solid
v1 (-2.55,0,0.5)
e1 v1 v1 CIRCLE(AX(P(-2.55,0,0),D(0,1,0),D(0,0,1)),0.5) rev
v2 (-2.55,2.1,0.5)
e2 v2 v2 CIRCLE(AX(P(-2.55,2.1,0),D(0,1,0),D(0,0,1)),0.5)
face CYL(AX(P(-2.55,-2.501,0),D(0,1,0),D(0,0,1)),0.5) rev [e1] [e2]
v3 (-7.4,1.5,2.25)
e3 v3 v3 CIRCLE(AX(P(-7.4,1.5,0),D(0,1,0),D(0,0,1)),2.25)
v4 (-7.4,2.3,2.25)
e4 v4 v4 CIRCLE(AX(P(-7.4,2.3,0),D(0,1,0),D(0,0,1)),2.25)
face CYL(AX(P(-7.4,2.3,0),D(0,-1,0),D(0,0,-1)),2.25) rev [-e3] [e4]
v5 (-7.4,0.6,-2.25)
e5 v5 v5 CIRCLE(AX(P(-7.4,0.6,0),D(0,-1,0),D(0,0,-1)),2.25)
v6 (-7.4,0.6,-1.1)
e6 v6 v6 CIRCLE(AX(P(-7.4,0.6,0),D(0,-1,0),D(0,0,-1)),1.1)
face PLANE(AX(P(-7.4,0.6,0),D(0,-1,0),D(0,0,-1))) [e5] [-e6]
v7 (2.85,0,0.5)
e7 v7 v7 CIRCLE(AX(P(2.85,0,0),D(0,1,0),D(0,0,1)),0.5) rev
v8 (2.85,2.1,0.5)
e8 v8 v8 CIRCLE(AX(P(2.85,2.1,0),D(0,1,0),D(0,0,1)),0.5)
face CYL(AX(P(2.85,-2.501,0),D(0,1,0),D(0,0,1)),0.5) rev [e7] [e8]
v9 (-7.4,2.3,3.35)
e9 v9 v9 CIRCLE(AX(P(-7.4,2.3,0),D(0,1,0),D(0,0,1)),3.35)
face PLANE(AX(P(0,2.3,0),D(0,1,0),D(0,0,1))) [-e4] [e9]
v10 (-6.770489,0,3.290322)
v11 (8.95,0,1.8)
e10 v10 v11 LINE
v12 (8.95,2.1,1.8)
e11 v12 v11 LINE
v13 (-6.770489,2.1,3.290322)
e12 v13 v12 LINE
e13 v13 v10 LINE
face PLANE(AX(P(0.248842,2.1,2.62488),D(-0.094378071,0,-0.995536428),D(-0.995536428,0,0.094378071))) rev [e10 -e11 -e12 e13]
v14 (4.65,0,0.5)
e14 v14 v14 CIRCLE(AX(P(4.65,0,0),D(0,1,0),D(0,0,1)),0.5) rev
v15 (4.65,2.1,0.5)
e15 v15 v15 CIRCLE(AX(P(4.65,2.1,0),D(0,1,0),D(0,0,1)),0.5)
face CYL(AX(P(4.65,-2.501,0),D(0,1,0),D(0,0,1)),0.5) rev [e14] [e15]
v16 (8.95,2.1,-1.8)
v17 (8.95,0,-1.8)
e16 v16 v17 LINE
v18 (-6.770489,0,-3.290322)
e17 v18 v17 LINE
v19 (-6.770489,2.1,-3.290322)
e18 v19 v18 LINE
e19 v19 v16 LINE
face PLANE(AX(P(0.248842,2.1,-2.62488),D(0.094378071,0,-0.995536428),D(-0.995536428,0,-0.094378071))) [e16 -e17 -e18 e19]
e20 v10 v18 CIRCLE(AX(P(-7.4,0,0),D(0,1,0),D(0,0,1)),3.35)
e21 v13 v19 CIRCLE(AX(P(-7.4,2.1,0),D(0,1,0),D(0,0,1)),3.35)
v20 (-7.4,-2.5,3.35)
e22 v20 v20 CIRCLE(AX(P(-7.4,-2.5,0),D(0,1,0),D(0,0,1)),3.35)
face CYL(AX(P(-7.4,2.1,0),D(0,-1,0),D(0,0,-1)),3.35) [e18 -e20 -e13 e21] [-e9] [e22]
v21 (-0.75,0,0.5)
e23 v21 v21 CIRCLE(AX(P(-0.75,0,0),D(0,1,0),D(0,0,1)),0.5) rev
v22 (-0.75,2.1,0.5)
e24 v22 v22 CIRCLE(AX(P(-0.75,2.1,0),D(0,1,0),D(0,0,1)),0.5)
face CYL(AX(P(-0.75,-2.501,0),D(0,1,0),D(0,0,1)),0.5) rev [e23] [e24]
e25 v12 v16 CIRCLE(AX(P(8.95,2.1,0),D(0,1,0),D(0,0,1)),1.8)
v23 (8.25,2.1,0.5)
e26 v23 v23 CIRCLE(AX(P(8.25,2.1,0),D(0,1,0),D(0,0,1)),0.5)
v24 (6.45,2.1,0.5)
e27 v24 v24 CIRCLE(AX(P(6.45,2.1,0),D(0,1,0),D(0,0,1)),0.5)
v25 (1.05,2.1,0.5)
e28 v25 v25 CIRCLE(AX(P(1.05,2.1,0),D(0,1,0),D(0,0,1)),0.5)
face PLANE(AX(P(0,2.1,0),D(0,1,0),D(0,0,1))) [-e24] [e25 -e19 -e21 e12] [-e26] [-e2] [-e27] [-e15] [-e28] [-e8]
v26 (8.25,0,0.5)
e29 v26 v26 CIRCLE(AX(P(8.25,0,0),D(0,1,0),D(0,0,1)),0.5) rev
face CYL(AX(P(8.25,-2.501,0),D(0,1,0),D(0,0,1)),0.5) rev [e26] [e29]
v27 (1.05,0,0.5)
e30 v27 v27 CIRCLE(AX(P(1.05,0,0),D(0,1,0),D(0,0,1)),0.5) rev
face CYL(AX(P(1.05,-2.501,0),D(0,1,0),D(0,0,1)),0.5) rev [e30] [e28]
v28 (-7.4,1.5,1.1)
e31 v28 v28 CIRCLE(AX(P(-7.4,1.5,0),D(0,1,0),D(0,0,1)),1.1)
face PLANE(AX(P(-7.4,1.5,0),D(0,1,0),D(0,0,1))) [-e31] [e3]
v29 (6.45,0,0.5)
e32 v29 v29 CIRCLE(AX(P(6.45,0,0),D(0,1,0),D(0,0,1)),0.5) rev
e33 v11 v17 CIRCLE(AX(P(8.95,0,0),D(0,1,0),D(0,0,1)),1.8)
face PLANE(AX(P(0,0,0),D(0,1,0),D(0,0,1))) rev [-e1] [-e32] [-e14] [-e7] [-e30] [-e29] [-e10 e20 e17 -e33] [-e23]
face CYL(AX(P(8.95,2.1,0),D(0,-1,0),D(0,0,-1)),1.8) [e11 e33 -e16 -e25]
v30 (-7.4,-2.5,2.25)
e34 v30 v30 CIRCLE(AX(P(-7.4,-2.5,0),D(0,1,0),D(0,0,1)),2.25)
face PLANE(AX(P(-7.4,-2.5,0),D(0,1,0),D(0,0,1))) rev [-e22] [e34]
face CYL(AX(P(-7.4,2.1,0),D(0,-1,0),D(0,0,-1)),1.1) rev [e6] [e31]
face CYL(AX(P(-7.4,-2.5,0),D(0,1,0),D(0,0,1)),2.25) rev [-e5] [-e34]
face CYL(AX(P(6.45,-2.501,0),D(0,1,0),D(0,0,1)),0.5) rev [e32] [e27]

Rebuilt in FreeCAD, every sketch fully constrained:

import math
import FreeCAD as App
import Part
import Sketcher
from FreeCAD import Vector

doc = App.newDocument("Part")
params = doc.addObject("Spreadsheet::Sheet", "Params")
for row, (alias, value) in enumerate([
    ("sketch1_diameter", "2.2 mm"),
    ("sketch1_radius", "1.8 mm"),
    ("sketch1_radius2", "3.35 mm"),
    ("pad1_length", "2.1 mm"),
    ("sketch2_diameter", "6.7 mm"),
    ("sketch2_diameter2", "4.5 mm"),
    ("pad2_length", "0.2 mm"),
    ("sketch3_diameter", "4.5 mm"),
    ("pocket1_length", "0.8 mm"),
    ("sketch4_diameter", "6.7 mm"),
    ("sketch4_diameter2", "4.5 mm"),
    ("pad3_length", "4.8 mm"),
    ("sketch5_diameter", "4.5 mm"),
    ("sketch5_diameter2", "2.2 mm"),
    ("pocket2_length", "3.1 mm"),
    ("sketch6_diameter", "1 mm"),
    ("sketch7_diameter", "1 mm"),
    ("sketch8_diameter", "1 mm"),
    ("sketch9_diameter", "1 mm"),
    ("sketch10_diameter", "1 mm"),
    ("sketch11_diameter", "1 mm"),
    ("sketch12_diameter", "1 mm"),
], start=1):
    params.set(f"A{row}", alias)
    params.set(f"B{row}", "=" + value)
    params.setAlias(f"B{row}", alias)

body = doc.addObject("PartDesign::Body", "Body")

sketch1 = body.newObject("Sketcher::SketchObject", "Sketch")
sketch1.AttachmentSupport = (doc.getObject("XZ_Plane"), [""])
sketch1.MapMode = "FlatFace"
sketch1.addGeometry([
    Part.ArcOfCircle(Part.Circle(Vector(-7.4, 0, 0), Vector(0, 0, 1), 3.4), math.radians(90), math.radians(270)),
    Part.LineSegment(Vector(-7.4, 3.4, 0), Vector(8.9, 1.8, 0)),
    Part.ArcOfCircle(Part.Circle(Vector(8.9, 0, 0), Vector(0, 0, 1), 1.8), math.radians(-90), math.radians(90)),
    Part.LineSegment(Vector(8.9, -1.8, 0), Vector(-7.4, -3.4, 0)),
    Part.Circle(Vector(-7.4, 0, 0), Vector(0, 0, 1), 1.1),
], False)
sketch1.addConstraint([
    Sketcher.Constraint("Coincident", 0, 1, 1, 1),
    Sketcher.Constraint("Coincident", 1, 2, 2, 2),
    Sketcher.Constraint("Coincident", 2, 1, 3, 1),
    Sketcher.Constraint("Coincident", 3, 2, 0, 2),
    Sketcher.Constraint("Coincident", 4, 3, 0, 3),
    Sketcher.Constraint("Symmetric", 1, 2, 2, 1, -1),
    Sketcher.Constraint("Symmetric", 0, 1, 3, 2, -1),
    Sketcher.Constraint("Vertical", 4, 3, 0, 1),
    Sketcher.Constraint("Vertical", 2, 3, 1, 2),
    Sketcher.Constraint("Diameter", 4, 2.2),
    Sketcher.Constraint("Radius", 2, 1.8),
    Sketcher.Constraint("Radius", 0, 3.35),
    Sketcher.Constraint("DistanceX", 0, 3, -1, 1, 7.4),
    Sketcher.Constraint("DistanceX", -1, 1, 2, 3, 8.95),
])
sketch1.setExpression("Constraints[9]", "Params.sketch1_diameter")
sketch1.setExpression("Constraints[10]", "Params.sketch1_radius")
sketch1.setExpression("Constraints[11]", "Params.sketch1_radius2")
pad1 = body.newObject("PartDesign::Pad", "Pad")
pad1.Profile = sketch1
pad1.setExpression("Length", "Params.pad1_length")
pad1.Reversed = True

sketch2 = body.newObject("Sketcher::SketchObject", "Sketch001")
sketch2.AttachmentSupport = (doc.getObject("XZ_Plane"), [""])
sketch2.MapMode = "FlatFace"
sketch2.AttachmentOffset = App.Placement(Vector(0, 0, -2.1), App.Rotation())
sketch2.addGeometry([
    Part.Circle(Vector(-7.4, 0, 0), Vector(0, 0, 1), 3.4),
    Part.Circle(Vector(-7.4, 0, 0), Vector(0, 0, 1), 2.2),
], False)
sketch2.addConstraint([
    Sketcher.Constraint("Coincident", 1, 3, 0, 3),
    Sketcher.Constraint("PointOnObject", 0, 3, -1),
    Sketcher.Constraint("Diameter", 0, 6.7),
    Sketcher.Constraint("Diameter", 1, 4.5),
    Sketcher.Constraint("DistanceX", 0, 3, -1, 1, 7.4),
])
sketch2.setExpression("Constraints[2]", "Params.sketch2_diameter")
sketch2.setExpression("Constraints[3]", "Params.sketch2_diameter2")
pad2 = body.newObject("PartDesign::Pad", "Pad001")
pad2.Profile = sketch2
pad2.setExpression("Length", "Params.pad2_length")
pad2.Reversed = True

sketch3 = body.newObject("Sketcher::SketchObject", "Sketch002")
sketch3.AttachmentSupport = (doc.getObject("XZ_Plane"), [""])
sketch3.MapMode = "FlatFace"
sketch3.AttachmentOffset = App.Placement(Vector(0, 0, -1.5), App.Rotation())
sketch3.addGeometry(Part.Circle(Vector(-7.4, 0, 0), Vector(0, 0, 1), 2.2), False)
sketch3.addConstraint([
    Sketcher.Constraint("PointOnObject", 0, 3, -1),
    Sketcher.Constraint("Diameter", 0, 4.5),
    Sketcher.Constraint("DistanceX", 0, 3, -1, 1, 7.4),
])
sketch3.setExpression("Constraints[1]", "Params.sketch3_diameter")
pocket1 = body.newObject("PartDesign::Pocket", "Pocket")
pocket1.Profile = sketch3
pocket1.setExpression("Length", "Params.pocket1_length")

sketch4 = body.newObject("Sketcher::SketchObject", "Sketch003")
sketch4.AttachmentSupport = (doc.getObject("XZ_Plane"), [""])
sketch4.MapMode = "FlatFace"
sketch4.AttachmentOffset = App.Placement(Vector(0, 0, 2.5), App.Rotation())
sketch4.addGeometry([
    Part.Circle(Vector(-7.4, 0, 0), Vector(0, 0, 1), 3.4),
    Part.Circle(Vector(-7.4, 0, 0), Vector(0, 0, 1), 2.2),
], False)
sketch4.addConstraint([
    Sketcher.Constraint("Coincident", 1, 3, 0, 3),
    Sketcher.Constraint("PointOnObject", 0, 3, -1),
    Sketcher.Constraint("Diameter", 0, 6.7),
    Sketcher.Constraint("Diameter", 1, 4.5),
    Sketcher.Constraint("DistanceX", 0, 3, -1, 1, 7.4),
])
sketch4.setExpression("Constraints[2]", "Params.sketch4_diameter")
sketch4.setExpression("Constraints[3]", "Params.sketch4_diameter2")
pad3 = body.newObject("PartDesign::Pad", "Pad002")
pad3.Profile = sketch4
pad3.setExpression("Length", "Params.pad3_length")
pad3.Reversed = True

sketch5 = body.newObject("Sketcher::SketchObject", "Sketch004")
sketch5.AttachmentSupport = (doc.getObject("XZ_Plane"), [""])
sketch5.MapMode = "FlatFace"
sketch5.AttachmentOffset = App.Placement(Vector(0, 0, 2.5), App.Rotation())
sketch5.addGeometry([
    Part.Circle(Vector(-7.4, 0, 0), Vector(0, 0, 1), 2.2),
    Part.Circle(Vector(-7.4, 0, 0), Vector(0, 0, 1), 1.1),
], False)
sketch5.addConstraint([
    Sketcher.Constraint("Coincident", 1, 3, 0, 3),
    Sketcher.Constraint("PointOnObject", 0, 3, -1),
    Sketcher.Constraint("Diameter", 0, 4.5),
    Sketcher.Constraint("Diameter", 1, 2.2),
    Sketcher.Constraint("DistanceX", 0, 3, -1, 1, 7.4),
])
sketch5.setExpression("Constraints[2]", "Params.sketch5_diameter")
sketch5.setExpression("Constraints[3]", "Params.sketch5_diameter2")
pocket2 = body.newObject("PartDesign::Pocket", "Pocket001")
pocket2.Profile = sketch5
pocket2.setExpression("Length", "Params.pocket2_length")

sketch6 = body.newObject("Sketcher::SketchObject", "Sketch005")
sketch6.AttachmentSupport = (doc.getObject("XZ_Plane"), [""])
sketch6.MapMode = "FlatFace"
sketch6.AttachmentOffset = App.Placement(Vector(0, 0, -2.1), App.Rotation())
sketch6.addGeometry(Part.Circle(Vector(-2.5, 0, 0), Vector(0, 0, 1), 0.5), False)
sketch6.addConstraint([
    Sketcher.Constraint("PointOnObject", 0, 3, -1),
    Sketcher.Constraint("Diameter", 0, 1.0),
    Sketcher.Constraint("DistanceX", 0, 3, -1, 1, 2.55),
])
sketch6.setExpression("Constraints[1]", "Params.sketch6_diameter")
pocket3 = body.newObject("PartDesign::Pocket", "Pocket002")
pocket3.Profile = sketch6
pocket3.Type = "UpToFirst"
pocket3.Reversed = True

sketch7 = body.newObject("Sketcher::SketchObject", "Sketch006")
sketch7.AttachmentSupport = (doc.getObject("XZ_Plane"), [""])
sketch7.MapMode = "FlatFace"
sketch7.AttachmentOffset = App.Placement(Vector(0, 0, -2.1), App.Rotation())
sketch7.addGeometry(Part.Circle(Vector(-0.8, 0, 0), Vector(0, 0, 1), 0.5), False)
sketch7.addConstraint([
    Sketcher.Constraint("PointOnObject", 0, 3, -1),
    Sketcher.Constraint("Diameter", 0, 1.0),
    Sketcher.Constraint("DistanceX", 0, 3, -1, 1, 0.75),
])
sketch7.setExpression("Constraints[1]", "Params.sketch7_diameter")
pocket4 = body.newObject("PartDesign::Pocket", "Pocket003")
pocket4.Profile = sketch7
pocket4.Type = "UpToFirst"
pocket4.Reversed = True

sketch8 = body.newObject("Sketcher::SketchObject", "Sketch007")
sketch8.AttachmentSupport = (doc.getObject("XZ_Plane"), [""])
sketch8.MapMode = "FlatFace"
sketch8.AttachmentOffset = App.Placement(Vector(0, 0, -2.1), App.Rotation())
sketch8.addGeometry(Part.Circle(Vector(1.1, 0, 0), Vector(0, 0, 1), 0.5), False)
sketch8.addConstraint([
    Sketcher.Constraint("PointOnObject", 0, 3, -1),
    Sketcher.Constraint("Diameter", 0, 1.0),
    Sketcher.Constraint("DistanceX", -1, 1, 0, 3, 1.05),
])
sketch8.setExpression("Constraints[1]", "Params.sketch8_diameter")
pocket5 = body.newObject("PartDesign::Pocket", "Pocket004")
pocket5.Profile = sketch8
pocket5.Type = "UpToFirst"
pocket5.Reversed = True

sketch9 = body.newObject("Sketcher::SketchObject", "Sketch008")
sketch9.AttachmentSupport = (doc.getObject("XZ_Plane"), [""])
sketch9.MapMode = "FlatFace"
sketch9.AttachmentOffset = App.Placement(Vector(0, 0, -2.1), App.Rotation())
sketch9.addGeometry(Part.Circle(Vector(2.9, 0, 0), Vector(0, 0, 1), 0.5), False)
sketch9.addConstraint([
    Sketcher.Constraint("PointOnObject", 0, 3, -1),
    Sketcher.Constraint("Diameter", 0, 1.0),
    Sketcher.Constraint("DistanceX", -1, 1, 0, 3, 2.85),
])
sketch9.setExpression("Constraints[1]", "Params.sketch9_diameter")
pocket6 = body.newObject("PartDesign::Pocket", "Pocket005")
pocket6.Profile = sketch9
pocket6.Type = "UpToFirst"
pocket6.Reversed = True

sketch10 = body.newObject("Sketcher::SketchObject", "Sketch009")
sketch10.AttachmentSupport = (doc.getObject("XZ_Plane"), [""])
sketch10.MapMode = "FlatFace"
sketch10.AttachmentOffset = App.Placement(Vector(0, 0, -2.1), App.Rotation())
sketch10.addGeometry(Part.Circle(Vector(4.7, 0, 0), Vector(0, 0, 1), 0.5), False)
sketch10.addConstraint([
    Sketcher.Constraint("PointOnObject", 0, 3, -1),
    Sketcher.Constraint("Diameter", 0, 1.0),
    Sketcher.Constraint("DistanceX", -1, 1, 0, 3, 4.65),
])
sketch10.setExpression("Constraints[1]", "Params.sketch10_diameter")
pocket7 = body.newObject("PartDesign::Pocket", "Pocket006")
pocket7.Profile = sketch10
pocket7.Type = "UpToFirst"
pocket7.Reversed = True

sketch11 = body.newObject("Sketcher::SketchObject", "Sketch010")
sketch11.AttachmentSupport = (doc.getObject("XZ_Plane"), [""])
sketch11.MapMode = "FlatFace"
sketch11.AttachmentOffset = App.Placement(Vector(0, 0, -2.1), App.Rotation())
sketch11.addGeometry(Part.Circle(Vector(6.5, 0, 0), Vector(0, 0, 1), 0.5), False)
sketch11.addConstraint([
    Sketcher.Constraint("PointOnObject", 0, 3, -1),
    Sketcher.Constraint("Diameter", 0, 1.0),
    Sketcher.Constraint("DistanceX", -1, 1, 0, 3, 6.45),
])
sketch11.setExpression("Constraints[1]", "Params.sketch11_diameter")
pocket8 = body.newObject("PartDesign::Pocket", "Pocket007")
pocket8.Profile = sketch11
pocket8.Type = "UpToFirst"
pocket8.Reversed = True

sketch12 = body.newObject("Sketcher::SketchObject", "Sketch011")
sketch12.AttachmentSupport = (doc.getObject("XZ_Plane"), [""])
sketch12.MapMode = "FlatFace"
sketch12.AttachmentOffset = App.Placement(Vector(0, 0, -2.1), App.Rotation())
sketch12.addGeometry(Part.Circle(Vector(8.2, 0, 0), Vector(0, 0, 1), 0.5), False)
sketch12.addConstraint([
    Sketcher.Constraint("PointOnObject", 0, 3, -1),
    Sketcher.Constraint("Diameter", 0, 1.0),
    Sketcher.Constraint("DistanceX", -1, 1, 0, 3, 8.25),
])
sketch12.setExpression("Constraints[1]", "Params.sketch12_diameter")
pocket9 = body.newObject("PartDesign::Pocket", "Pocket008")
pocket9.Profile = sketch12
pocket9.Type = "UpToFirst"
pocket9.Reversed = True

doc.recompute()
